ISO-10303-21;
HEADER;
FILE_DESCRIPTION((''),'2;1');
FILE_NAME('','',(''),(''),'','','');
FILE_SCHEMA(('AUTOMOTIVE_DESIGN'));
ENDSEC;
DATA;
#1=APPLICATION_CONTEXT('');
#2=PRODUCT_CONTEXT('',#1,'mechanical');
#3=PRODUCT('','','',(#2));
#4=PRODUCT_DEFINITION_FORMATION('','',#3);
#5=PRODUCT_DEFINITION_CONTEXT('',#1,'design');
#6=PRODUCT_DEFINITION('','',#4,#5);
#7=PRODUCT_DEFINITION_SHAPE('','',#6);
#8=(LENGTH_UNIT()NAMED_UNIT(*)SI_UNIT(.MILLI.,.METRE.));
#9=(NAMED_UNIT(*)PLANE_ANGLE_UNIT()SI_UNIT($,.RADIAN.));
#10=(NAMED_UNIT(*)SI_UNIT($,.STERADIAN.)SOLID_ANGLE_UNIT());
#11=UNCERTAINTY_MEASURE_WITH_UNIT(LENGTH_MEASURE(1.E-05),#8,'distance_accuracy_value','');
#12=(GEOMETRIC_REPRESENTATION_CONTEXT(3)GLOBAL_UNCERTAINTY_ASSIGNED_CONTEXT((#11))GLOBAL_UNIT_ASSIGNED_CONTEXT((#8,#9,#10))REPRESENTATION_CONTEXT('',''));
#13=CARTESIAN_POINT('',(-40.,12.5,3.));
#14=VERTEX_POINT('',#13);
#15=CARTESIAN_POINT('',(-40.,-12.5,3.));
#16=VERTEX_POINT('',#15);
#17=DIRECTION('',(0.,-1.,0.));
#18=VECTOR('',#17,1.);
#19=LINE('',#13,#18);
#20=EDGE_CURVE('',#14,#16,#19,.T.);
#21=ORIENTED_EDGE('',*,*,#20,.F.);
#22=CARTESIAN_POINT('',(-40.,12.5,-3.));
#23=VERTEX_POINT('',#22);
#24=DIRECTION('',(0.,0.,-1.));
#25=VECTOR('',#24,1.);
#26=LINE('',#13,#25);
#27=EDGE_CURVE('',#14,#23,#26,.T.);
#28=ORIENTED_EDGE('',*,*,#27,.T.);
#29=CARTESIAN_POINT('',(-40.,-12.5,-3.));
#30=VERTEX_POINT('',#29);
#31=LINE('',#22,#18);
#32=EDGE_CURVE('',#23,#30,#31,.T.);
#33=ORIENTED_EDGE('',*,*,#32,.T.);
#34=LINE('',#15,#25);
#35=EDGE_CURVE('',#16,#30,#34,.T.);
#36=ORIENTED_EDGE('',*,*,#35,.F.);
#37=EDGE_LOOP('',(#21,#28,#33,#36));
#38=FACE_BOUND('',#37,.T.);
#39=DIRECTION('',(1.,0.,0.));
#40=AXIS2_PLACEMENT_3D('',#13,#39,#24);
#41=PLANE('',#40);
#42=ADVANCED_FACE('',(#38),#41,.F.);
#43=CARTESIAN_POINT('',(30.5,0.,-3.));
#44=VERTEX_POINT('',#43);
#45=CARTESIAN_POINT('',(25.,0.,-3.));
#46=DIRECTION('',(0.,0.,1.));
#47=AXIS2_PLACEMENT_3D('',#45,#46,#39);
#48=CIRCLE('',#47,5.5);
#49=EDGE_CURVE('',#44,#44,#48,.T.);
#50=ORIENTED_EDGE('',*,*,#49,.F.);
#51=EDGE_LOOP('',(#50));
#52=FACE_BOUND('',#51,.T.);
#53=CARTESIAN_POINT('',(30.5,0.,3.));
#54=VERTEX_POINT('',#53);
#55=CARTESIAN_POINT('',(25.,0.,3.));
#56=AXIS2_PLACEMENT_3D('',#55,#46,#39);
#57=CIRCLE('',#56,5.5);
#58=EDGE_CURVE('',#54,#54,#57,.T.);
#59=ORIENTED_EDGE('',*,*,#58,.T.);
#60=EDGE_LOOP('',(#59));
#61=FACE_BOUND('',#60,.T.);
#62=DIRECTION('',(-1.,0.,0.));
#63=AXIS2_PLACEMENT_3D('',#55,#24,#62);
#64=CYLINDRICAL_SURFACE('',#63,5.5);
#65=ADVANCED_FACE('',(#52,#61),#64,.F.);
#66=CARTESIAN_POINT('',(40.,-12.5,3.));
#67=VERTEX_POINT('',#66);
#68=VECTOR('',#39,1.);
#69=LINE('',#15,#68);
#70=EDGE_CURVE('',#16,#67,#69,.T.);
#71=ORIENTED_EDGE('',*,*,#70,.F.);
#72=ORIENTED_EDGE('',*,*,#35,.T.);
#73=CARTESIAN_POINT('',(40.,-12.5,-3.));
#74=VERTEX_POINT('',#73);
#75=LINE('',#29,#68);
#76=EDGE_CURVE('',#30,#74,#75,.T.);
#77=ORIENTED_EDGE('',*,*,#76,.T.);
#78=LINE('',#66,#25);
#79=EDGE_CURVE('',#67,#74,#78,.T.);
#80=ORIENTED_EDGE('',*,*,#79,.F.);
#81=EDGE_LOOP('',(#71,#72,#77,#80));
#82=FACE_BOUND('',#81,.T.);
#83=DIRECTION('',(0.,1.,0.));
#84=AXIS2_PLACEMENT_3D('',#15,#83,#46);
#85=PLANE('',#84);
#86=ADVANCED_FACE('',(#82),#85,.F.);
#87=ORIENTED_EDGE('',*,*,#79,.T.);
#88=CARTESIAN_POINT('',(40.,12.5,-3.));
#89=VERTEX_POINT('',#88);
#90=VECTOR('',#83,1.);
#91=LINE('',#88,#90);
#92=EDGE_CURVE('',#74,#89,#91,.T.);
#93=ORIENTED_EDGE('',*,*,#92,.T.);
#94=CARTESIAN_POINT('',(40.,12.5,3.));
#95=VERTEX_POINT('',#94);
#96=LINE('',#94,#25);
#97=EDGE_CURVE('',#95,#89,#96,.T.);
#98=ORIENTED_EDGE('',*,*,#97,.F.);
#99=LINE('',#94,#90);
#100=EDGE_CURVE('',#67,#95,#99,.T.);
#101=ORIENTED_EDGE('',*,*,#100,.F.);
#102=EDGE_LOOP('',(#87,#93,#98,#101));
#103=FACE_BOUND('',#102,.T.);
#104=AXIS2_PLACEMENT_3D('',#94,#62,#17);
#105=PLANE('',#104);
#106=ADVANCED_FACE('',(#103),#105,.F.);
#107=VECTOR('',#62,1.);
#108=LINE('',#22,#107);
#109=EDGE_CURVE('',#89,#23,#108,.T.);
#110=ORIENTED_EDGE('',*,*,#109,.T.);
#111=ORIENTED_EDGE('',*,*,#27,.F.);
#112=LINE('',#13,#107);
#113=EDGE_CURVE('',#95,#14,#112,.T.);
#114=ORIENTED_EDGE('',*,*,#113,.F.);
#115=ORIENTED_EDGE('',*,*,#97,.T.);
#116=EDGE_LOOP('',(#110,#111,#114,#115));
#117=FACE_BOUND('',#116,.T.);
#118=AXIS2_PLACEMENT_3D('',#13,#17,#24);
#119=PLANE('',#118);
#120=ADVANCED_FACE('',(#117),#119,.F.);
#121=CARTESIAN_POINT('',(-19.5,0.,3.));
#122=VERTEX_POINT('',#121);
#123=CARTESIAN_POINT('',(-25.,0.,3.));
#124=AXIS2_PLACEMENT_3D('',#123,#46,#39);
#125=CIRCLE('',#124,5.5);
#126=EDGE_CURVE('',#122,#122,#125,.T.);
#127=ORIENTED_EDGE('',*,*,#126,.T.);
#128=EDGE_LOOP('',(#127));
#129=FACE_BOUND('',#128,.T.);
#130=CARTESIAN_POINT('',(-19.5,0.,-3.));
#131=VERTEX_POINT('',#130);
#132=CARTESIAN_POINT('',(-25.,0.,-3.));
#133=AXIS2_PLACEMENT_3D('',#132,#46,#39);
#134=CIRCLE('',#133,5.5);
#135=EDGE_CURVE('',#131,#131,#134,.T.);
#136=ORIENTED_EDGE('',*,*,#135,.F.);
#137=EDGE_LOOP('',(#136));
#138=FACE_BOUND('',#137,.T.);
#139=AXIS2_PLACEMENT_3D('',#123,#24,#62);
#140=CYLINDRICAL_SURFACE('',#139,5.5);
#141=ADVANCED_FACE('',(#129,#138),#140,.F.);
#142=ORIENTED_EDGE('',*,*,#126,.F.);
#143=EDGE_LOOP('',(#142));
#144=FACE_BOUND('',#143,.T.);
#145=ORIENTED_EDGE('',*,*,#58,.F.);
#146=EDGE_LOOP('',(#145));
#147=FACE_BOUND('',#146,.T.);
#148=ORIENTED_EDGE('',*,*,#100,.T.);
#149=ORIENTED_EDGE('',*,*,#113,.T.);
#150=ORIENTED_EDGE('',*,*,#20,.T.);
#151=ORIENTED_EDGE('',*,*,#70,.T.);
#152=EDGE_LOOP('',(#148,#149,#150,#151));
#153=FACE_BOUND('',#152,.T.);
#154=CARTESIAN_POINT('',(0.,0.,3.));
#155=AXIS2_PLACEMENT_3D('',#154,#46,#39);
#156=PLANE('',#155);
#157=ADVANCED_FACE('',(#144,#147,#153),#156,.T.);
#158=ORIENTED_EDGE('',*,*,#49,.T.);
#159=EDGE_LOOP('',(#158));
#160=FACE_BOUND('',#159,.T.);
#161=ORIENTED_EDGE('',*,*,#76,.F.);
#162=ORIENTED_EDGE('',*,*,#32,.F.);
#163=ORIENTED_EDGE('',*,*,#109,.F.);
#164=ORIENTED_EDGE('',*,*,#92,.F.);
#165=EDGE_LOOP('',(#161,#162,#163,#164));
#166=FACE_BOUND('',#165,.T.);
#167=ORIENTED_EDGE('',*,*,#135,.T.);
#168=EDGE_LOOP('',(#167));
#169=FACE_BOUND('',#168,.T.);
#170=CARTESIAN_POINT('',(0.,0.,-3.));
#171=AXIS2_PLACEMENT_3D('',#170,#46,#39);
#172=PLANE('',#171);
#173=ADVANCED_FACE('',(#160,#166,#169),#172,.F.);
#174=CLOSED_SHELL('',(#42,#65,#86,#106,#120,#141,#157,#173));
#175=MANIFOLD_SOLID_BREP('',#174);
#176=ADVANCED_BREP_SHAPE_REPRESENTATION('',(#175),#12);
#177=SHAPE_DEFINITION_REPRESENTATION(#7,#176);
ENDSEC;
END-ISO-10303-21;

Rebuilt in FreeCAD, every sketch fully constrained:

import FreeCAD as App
import Part
import Sketcher

doc = App.newDocument("Part")
params = doc.addObject("Spreadsheet::Sheet", "Params")
for row, (alias, value) in enumerate([
    ("sketch1_diameter", "11 mm"),
    ("sketch1_width", "80 mm"),
    ("sketch1_height", "25 mm"),
    ("pad1_length", "6 mm"),
], start=1):
    params.set(f"A{row}", alias)
    params.set(f"B{row}", "=" + value)
    params.setAlias(f"B{row}", alias)

body = doc.addObject("PartDesign::Body", "Body")

# Sketch on XY plane
sketch1 = body.newObject("Sketcher::SketchObject", "Sketch")
sketch1.AttachmentSupport = (doc.getObject("XY_Plane"), [""])
sketch1.MapMode = "FlatFace"
sketch1.addGeometry([
    Part.LineSegment(App.Vector(-40, 12, 0), App.Vector(-40, -12, 0)),  # 0
    Part.LineSegment(App.Vector(-40, -12, 0), App.Vector(40, -12, 0)),  # 1
    Part.LineSegment(App.Vector(40, -12, 0), App.Vector(40, 12, 0)),  # 2
    Part.LineSegment(App.Vector(40, 12, 0), App.Vector(-40, 12, 0)),  # 3
    Part.Circle(App.Vector(-25, 0, 0), App.Vector(0, 0, 1), 6),  # 4
    Part.Circle(App.Vector(25, 0, 0), App.Vector(0, 0, 1), 6),  # 5
], False)
sketch1.addConstraint([
    Sketcher.Constraint("Coincident", 0, 2, 1, 1),
    Sketcher.Constraint("Coincident", 1, 2, 2, 1),
    Sketcher.Constraint("Coincident", 2, 2, 3, 1),
    Sketcher.Constraint("Coincident", 3, 2, 0, 1),
    Sketcher.Constraint("Vertical", 0),
    Sketcher.Constraint("Horizontal", 1),
    Sketcher.Constraint("Vertical", 2),
    Sketcher.Constraint("Horizontal", 3),
    Sketcher.Constraint("Equal", 4, 5),
    Sketcher.Constraint("Symmetric", 4, 3, 5, 3, -1, 1),
    Sketcher.Constraint("Symmetric", 0, 2, 2, 2, -1, 1),
    Sketcher.Constraint("PointOnObject", 4, 3, -1),
    Sketcher.Constraint("Diameter", 4, 11.0),
    Sketcher.Constraint("DistanceX", 1, 1, 1, 2, 80.0),
    Sketcher.Constraint("DistanceY", 0, 2, 0, 1, 25.0),
    Sketcher.Constraint("DistanceX", 4, 3, -1, 1, 25.0),
])
sketch1.setExpression("Constraints[12]", "Params.sketch1_diameter")
sketch1.setExpression("Constraints[13]", "Params.sketch1_width")
sketch1.setExpression("Constraints[14]", "Params.sketch1_height")
pad1 = body.newObject("PartDesign::Pad", "Pad")
pad1.Profile = sketch1
pad1.setExpression("Length", "Params.pad1_length")
pad1.Midplane = True

doc.recompute()
